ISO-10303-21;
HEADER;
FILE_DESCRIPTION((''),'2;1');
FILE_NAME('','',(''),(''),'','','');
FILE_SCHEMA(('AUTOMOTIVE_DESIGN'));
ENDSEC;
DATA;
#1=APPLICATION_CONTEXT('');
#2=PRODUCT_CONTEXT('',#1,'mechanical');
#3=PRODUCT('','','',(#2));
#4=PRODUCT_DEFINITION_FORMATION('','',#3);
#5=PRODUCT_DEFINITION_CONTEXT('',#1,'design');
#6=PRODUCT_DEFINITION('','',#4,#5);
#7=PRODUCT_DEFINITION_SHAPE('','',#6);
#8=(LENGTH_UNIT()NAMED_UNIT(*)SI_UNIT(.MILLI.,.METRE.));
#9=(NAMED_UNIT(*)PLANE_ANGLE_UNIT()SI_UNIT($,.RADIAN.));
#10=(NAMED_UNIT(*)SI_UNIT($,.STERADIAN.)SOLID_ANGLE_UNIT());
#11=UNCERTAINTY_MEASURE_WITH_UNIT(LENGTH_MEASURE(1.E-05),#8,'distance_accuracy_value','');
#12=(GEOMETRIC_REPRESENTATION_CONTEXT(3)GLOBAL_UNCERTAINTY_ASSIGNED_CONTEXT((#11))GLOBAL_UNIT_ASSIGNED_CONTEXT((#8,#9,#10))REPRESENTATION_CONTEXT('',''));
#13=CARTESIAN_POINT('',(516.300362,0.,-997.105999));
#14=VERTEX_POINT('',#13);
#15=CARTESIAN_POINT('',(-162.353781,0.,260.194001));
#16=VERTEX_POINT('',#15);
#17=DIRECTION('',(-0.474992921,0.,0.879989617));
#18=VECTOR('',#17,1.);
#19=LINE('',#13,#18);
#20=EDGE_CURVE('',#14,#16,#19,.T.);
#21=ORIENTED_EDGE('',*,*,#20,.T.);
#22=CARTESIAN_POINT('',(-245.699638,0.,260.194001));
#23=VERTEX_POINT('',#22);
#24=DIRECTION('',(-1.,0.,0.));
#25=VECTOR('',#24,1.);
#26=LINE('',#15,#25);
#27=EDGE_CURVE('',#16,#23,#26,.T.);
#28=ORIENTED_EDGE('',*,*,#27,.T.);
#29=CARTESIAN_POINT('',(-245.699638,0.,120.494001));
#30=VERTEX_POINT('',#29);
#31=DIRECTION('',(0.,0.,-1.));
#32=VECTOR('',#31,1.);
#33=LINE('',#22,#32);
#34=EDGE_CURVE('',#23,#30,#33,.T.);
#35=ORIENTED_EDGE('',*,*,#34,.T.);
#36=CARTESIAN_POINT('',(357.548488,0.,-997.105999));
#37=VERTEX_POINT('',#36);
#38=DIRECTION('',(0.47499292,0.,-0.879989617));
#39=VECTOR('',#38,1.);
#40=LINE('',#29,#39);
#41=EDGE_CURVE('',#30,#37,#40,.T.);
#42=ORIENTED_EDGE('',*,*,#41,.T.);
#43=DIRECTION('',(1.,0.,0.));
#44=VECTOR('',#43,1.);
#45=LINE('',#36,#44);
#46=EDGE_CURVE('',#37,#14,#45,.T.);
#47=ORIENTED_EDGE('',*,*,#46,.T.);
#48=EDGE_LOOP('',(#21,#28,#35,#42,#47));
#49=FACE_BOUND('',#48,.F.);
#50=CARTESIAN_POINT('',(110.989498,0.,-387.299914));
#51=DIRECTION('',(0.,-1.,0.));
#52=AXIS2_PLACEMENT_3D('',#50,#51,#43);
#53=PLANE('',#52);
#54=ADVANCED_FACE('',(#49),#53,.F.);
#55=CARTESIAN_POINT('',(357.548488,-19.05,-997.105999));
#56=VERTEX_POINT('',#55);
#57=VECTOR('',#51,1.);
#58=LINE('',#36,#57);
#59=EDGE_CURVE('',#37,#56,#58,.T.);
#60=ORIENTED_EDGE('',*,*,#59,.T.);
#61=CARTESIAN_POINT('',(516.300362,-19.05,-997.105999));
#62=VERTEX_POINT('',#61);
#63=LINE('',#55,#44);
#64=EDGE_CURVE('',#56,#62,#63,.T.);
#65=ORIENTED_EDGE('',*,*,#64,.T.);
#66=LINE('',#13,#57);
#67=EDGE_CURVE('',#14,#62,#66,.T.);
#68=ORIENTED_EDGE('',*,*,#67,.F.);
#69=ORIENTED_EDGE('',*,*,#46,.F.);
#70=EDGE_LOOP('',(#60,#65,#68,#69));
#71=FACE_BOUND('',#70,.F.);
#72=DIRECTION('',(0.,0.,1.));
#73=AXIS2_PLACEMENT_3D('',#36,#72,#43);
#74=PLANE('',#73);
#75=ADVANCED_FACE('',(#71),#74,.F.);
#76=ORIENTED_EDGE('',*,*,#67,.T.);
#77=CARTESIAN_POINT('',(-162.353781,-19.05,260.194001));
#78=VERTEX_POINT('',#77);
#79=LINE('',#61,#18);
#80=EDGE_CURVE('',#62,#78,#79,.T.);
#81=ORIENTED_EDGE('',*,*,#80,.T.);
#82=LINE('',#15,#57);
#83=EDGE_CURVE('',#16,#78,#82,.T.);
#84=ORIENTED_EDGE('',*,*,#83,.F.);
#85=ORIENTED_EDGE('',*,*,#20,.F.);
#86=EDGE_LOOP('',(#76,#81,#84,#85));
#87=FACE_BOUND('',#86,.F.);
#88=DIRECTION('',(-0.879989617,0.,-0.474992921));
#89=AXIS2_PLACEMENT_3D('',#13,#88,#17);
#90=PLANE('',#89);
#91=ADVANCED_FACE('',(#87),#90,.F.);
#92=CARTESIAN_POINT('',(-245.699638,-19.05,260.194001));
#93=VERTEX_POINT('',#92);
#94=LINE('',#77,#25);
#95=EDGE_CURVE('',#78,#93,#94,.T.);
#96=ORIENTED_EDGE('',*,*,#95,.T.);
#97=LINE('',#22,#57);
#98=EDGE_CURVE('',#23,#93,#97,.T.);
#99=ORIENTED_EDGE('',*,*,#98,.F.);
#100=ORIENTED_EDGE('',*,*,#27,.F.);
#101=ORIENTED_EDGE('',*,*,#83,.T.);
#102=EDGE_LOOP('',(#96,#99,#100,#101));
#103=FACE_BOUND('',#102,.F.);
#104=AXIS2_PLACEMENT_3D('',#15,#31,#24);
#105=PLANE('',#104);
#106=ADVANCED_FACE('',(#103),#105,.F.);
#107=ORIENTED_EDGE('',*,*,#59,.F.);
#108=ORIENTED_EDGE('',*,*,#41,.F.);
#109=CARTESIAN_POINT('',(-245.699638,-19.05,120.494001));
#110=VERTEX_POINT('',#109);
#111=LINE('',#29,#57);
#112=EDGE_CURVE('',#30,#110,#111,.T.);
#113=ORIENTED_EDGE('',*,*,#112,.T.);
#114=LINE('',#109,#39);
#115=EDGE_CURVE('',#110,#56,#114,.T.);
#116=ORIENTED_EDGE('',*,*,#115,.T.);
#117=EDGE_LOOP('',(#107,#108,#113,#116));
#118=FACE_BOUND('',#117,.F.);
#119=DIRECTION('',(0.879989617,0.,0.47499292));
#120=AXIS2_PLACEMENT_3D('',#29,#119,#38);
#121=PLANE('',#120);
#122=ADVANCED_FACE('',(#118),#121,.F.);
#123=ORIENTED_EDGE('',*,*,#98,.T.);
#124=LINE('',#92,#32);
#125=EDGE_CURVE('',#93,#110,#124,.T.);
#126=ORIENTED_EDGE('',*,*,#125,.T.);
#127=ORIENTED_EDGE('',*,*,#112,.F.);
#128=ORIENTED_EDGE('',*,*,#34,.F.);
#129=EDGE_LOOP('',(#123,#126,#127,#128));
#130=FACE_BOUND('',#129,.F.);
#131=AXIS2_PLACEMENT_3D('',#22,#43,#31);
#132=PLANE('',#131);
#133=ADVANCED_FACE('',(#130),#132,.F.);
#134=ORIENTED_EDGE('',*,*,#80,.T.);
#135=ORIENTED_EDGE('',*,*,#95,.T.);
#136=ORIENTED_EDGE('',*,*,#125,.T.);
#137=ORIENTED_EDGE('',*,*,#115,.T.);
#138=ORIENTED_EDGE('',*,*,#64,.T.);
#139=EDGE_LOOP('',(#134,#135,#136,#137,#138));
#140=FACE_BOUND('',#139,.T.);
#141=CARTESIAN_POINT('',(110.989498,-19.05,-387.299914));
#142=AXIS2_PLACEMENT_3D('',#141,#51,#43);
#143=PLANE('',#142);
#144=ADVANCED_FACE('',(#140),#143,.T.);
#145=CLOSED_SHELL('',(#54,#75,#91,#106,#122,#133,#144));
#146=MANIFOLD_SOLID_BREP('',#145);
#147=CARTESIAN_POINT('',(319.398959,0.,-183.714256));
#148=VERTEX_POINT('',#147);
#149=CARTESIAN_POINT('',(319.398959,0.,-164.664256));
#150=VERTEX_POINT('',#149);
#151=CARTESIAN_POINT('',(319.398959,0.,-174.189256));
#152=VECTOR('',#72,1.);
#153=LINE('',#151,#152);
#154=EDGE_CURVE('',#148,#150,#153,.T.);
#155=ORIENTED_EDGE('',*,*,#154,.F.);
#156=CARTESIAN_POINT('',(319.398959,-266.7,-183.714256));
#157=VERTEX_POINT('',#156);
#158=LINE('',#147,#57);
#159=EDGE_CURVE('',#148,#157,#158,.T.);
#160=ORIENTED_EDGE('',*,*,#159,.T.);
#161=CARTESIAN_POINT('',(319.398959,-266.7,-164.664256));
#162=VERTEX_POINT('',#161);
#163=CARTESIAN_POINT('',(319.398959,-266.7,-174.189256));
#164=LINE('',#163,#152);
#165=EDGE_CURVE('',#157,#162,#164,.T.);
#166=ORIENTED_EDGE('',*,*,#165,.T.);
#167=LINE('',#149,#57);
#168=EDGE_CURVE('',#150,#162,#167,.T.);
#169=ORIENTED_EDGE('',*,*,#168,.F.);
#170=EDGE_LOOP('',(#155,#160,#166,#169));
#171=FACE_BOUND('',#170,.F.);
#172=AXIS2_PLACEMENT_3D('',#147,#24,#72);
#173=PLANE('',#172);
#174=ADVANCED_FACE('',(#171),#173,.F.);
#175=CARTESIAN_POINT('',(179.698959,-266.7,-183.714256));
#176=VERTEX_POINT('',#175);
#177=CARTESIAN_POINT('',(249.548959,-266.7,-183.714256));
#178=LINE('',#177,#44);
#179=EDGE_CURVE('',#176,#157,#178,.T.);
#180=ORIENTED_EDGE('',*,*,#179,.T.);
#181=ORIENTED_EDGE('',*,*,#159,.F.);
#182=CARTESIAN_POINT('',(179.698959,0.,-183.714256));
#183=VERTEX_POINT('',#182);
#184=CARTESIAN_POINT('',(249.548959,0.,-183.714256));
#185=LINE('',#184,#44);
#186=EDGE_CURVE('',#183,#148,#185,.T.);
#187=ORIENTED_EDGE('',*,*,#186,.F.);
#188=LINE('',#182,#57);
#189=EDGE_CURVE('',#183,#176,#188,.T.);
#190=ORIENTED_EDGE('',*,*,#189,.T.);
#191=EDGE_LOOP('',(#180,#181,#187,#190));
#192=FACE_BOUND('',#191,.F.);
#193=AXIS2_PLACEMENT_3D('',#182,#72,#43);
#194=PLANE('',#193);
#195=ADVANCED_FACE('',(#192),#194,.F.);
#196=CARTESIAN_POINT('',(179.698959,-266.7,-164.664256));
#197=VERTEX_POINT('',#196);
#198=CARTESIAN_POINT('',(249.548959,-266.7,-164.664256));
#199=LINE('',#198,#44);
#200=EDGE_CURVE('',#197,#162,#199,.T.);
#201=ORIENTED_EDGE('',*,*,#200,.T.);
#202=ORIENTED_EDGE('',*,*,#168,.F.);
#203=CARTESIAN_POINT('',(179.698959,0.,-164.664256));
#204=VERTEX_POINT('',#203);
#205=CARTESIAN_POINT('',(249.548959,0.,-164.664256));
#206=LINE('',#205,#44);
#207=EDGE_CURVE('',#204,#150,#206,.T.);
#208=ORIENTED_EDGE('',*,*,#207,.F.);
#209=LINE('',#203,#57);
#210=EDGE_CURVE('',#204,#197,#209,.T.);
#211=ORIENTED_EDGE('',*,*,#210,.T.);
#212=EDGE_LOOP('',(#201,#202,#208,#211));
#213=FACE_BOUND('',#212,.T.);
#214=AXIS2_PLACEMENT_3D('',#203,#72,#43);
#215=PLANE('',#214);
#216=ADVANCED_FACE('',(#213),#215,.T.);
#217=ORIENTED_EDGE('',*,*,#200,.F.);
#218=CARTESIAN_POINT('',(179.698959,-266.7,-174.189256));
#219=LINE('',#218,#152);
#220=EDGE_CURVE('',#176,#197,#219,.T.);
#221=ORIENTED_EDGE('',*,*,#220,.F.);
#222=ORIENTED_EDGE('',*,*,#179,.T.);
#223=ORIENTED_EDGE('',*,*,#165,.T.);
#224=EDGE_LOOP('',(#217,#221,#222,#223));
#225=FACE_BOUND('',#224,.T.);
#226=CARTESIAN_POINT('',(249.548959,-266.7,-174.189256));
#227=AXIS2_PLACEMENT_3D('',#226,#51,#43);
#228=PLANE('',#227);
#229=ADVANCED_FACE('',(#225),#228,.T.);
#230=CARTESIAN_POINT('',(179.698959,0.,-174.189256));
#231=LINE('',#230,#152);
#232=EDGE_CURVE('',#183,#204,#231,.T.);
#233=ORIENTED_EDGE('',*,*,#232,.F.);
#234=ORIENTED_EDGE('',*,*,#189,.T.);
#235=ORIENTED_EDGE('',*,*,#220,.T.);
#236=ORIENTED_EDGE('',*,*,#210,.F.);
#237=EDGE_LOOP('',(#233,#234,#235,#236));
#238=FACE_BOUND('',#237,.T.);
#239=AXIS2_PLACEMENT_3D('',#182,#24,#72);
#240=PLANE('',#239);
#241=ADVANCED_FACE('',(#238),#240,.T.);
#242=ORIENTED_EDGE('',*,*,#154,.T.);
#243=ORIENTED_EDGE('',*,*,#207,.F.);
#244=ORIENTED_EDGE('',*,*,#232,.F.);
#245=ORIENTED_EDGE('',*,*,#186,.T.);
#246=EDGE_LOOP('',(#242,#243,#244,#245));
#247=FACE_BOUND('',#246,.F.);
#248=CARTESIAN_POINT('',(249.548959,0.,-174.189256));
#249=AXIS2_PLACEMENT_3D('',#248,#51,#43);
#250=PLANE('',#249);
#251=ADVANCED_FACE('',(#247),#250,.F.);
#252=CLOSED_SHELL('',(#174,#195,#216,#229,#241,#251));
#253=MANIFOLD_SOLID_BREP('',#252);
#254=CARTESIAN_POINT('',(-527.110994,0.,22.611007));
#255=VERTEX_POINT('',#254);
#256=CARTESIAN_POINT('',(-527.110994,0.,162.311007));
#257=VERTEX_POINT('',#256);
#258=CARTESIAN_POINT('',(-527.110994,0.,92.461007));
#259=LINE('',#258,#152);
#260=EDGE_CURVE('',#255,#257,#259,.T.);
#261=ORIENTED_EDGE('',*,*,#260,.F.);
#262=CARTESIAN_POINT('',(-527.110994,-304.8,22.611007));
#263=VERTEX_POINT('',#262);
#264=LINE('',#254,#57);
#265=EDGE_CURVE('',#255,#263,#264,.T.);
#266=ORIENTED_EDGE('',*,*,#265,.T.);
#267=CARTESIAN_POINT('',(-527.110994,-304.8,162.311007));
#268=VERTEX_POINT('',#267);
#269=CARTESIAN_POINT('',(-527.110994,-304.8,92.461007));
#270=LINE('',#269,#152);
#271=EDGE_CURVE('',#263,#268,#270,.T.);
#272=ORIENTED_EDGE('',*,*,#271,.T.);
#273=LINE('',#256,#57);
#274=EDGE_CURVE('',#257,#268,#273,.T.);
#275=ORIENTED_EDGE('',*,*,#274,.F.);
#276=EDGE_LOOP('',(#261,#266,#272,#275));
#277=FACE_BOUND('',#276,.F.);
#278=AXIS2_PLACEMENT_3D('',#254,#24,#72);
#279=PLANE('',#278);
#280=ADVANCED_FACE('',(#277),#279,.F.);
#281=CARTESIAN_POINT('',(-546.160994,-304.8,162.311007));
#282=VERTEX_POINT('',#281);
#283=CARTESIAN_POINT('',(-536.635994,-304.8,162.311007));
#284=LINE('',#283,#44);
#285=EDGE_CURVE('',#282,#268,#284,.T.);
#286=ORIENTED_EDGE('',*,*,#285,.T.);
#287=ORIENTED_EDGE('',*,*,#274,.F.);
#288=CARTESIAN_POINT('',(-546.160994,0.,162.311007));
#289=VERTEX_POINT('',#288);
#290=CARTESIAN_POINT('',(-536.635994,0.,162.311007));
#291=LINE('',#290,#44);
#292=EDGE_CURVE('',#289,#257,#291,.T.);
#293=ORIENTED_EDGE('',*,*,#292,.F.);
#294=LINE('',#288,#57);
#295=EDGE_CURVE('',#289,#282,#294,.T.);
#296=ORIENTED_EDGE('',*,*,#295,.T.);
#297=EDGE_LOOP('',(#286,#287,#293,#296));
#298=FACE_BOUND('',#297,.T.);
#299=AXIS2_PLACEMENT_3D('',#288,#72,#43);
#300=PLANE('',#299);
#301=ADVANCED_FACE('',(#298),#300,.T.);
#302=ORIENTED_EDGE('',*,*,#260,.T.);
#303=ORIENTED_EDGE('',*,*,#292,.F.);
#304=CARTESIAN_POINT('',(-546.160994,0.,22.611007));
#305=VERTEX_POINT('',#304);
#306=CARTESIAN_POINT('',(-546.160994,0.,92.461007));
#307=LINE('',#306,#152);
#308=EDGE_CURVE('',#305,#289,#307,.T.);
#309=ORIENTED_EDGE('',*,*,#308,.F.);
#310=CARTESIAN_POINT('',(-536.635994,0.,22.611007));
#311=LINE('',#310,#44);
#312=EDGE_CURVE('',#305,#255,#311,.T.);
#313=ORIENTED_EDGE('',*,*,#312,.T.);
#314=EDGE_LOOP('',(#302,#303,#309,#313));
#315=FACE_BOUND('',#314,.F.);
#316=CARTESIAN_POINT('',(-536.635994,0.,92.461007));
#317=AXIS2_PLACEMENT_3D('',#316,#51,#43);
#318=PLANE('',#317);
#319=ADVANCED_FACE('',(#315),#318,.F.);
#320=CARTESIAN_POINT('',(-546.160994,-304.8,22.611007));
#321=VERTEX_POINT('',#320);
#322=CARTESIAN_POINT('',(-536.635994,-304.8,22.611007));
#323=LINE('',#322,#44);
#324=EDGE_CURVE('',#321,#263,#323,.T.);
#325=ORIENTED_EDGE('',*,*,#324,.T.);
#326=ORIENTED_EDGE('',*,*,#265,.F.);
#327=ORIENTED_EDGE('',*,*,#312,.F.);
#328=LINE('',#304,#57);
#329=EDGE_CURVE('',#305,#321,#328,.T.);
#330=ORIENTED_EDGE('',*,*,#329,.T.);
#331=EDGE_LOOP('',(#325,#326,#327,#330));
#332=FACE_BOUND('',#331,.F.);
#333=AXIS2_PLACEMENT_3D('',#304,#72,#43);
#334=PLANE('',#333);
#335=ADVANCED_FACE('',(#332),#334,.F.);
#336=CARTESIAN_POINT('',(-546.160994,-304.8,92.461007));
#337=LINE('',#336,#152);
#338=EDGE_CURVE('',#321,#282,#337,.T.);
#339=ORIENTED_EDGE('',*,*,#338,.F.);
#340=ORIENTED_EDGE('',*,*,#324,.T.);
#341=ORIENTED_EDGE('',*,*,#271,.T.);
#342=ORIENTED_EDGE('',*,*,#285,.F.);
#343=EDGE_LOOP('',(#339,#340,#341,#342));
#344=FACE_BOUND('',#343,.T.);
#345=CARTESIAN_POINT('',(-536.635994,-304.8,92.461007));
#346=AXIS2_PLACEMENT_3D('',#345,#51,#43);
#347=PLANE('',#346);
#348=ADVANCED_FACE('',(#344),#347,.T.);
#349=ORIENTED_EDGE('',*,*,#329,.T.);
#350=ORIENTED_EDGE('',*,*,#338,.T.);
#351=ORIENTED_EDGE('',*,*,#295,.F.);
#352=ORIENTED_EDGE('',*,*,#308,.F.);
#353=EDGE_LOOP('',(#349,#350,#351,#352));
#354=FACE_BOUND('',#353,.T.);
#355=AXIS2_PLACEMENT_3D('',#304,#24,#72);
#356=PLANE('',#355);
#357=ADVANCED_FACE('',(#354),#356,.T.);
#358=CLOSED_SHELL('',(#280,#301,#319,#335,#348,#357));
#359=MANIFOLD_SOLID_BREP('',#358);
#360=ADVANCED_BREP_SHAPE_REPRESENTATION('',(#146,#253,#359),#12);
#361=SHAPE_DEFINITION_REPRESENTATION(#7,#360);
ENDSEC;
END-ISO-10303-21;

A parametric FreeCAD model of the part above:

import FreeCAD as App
import Part
import Sketcher
from FreeCAD import Vector
Q = App.Units.Quantity


def add_polygon(sketch, points):
    """Adds a closed chain of lines whose ends are joined by coincident constraints."""
    first, n = sketch.GeometryCount, len(points)
    for a, b in zip(points, points[1:] + points[:1]):
        sketch.addGeometry(Part.LineSegment(App.Vector(*a, 0), App.Vector(*b, 0)), False)
    for i in range(n):
        sketch.addConstraint(Sketcher.Constraint("Coincident", first + i, 2, first + (i + 1) % n, 1))

doc = App.newDocument("Part")
body = doc.addObject("PartDesign::Body", "Body")

# Sketch on XZ plane
sketch1 = doc.addObject("Sketcher::SketchObject", "Sketch")
body.addObject(sketch1)
sketch1.AttachmentSupport = (doc.XZ_Plane, [""])
sketch1.MapMode = "FlatFace"
add_polygon(sketch1, [(-246, 260), (-246, 120), (358, -997), (516, -997), (-162, 260)])  # lines 0-4
sketch1.addConstraint(Sketcher.Constraint("Vertical", 0))
sketch1.addConstraint(Sketcher.Constraint("Horizontal", 2))
sketch1.addConstraint(Sketcher.Constraint("Horizontal", 4))
sketch1.addConstraint(Sketcher.Constraint("Parallel", 1, 3))
sketch1.addConstraint(Sketcher.Constraint("DistanceY", 0, 2, 0, 1, Q("5.5 in")))
sketch1.addConstraint(Sketcher.Constraint("DistanceY", 1, 2, 0, 2, Q("44 in")))
sketch1.addConstraint(Sketcher.Constraint("DistanceX", 0, 2, 2, 2, Q("30 in")))
sketch1.addConstraint(Sketcher.Constraint("DistanceY", -1, 1, 0, 2, 120.494001))
sketch1.addConstraint(Sketcher.Constraint("Distance", 3, 1428.766858))
sketch1.addConstraint(Sketcher.Constraint("DistanceX", 0, 2, -1, 1, 245.699638))
pad1 = doc.addObject("PartDesign::Pad", "Pad")
body.addObject(pad1)
pad1.Profile = sketch1
pad1.Length = Q("0.75 in")
body2 = doc.addObject("PartDesign::Body", "Body001")

# Sketch on XZ plane
sketch2 = doc.addObject("Sketcher::SketchObject", "Sketch001")
body2.addObject(sketch2)
sketch2.AttachmentSupport = (doc.getObject("XZ_Plane001"), [""])
sketch2.MapMode = "FlatFace"
add_polygon(sketch2, [(180, -165), (180, -184), (319, -184), (319, -165)])  # lines 0-3
sketch2.addConstraint(Sketcher.Constraint("Vertical", 0))
sketch2.addConstraint(Sketcher.Constraint("Horizontal", 1))
sketch2.addConstraint(Sketcher.Constraint("Vertical", 2))
sketch2.addConstraint(Sketcher.Constraint("Horizontal", 3))
sketch2.addConstraint(Sketcher.Constraint("DistanceX", 1, 1, 1, 2, Q("5.5 in")))
sketch2.addConstraint(Sketcher.Constraint("DistanceY", 0, 2, 0, 1, Q("0.75 in")))
sketch2.addConstraint(Sketcher.Constraint("DistanceX", -1, 1, 0, 2, 179.698959))
sketch2.addConstraint(Sketcher.Constraint("DistanceY", 0, 2, -1, 1, 183.714256))
pad2 = doc.addObject("PartDesign::Pad", "Pad001")
body2.addObject(pad2)
pad2.Profile = sketch2
pad2.Length = Q("10.5 in")
body3 = doc.addObject("PartDesign::Body", "Body002")

# Sketch on XZ plane
sketch3 = doc.addObject("Sketcher::SketchObject", "Sketch002")
body3.addObject(sketch3)
sketch3.AttachmentSupport = (doc.getObject("XZ_Plane002"), [""])
sketch3.MapMode = "FlatFace"
add_polygon(sketch3, [(-546, 162), (-546, 23), (-527, 23), (-527, 162)])  # lines 0-3
sketch3.addConstraint(Sketcher.Constraint("Vertical", 0))
sketch3.addConstraint(Sketcher.Constraint("Horizontal", 1))
sketch3.addConstraint(Sketcher.Constraint("Vertical", 2))
sketch3.addConstraint(Sketcher.Constraint("Horizontal", 3))
sketch3.addConstraint(Sketcher.Constraint("DistanceY", 0, 2, 0, 1, Q("5.5 in")))
sketch3.addConstraint(Sketcher.Constraint("DistanceX", 1, 1, 1, 2, Q("0.75 in")))
sketch3.addConstraint(Sketcher.Constraint("DistanceX", 0, 2, -1, 1, 546.160994))
sketch3.addConstraint(Sketcher.Constraint("DistanceY", -1, 1, 0, 2, 22.611007))
pad3 = doc.addObject("PartDesign::Pad", "Pad002")
body3.addObject(pad3)
pad3.Profile = sketch3
pad3.Length = Q("12 in")

doc.recompute()
